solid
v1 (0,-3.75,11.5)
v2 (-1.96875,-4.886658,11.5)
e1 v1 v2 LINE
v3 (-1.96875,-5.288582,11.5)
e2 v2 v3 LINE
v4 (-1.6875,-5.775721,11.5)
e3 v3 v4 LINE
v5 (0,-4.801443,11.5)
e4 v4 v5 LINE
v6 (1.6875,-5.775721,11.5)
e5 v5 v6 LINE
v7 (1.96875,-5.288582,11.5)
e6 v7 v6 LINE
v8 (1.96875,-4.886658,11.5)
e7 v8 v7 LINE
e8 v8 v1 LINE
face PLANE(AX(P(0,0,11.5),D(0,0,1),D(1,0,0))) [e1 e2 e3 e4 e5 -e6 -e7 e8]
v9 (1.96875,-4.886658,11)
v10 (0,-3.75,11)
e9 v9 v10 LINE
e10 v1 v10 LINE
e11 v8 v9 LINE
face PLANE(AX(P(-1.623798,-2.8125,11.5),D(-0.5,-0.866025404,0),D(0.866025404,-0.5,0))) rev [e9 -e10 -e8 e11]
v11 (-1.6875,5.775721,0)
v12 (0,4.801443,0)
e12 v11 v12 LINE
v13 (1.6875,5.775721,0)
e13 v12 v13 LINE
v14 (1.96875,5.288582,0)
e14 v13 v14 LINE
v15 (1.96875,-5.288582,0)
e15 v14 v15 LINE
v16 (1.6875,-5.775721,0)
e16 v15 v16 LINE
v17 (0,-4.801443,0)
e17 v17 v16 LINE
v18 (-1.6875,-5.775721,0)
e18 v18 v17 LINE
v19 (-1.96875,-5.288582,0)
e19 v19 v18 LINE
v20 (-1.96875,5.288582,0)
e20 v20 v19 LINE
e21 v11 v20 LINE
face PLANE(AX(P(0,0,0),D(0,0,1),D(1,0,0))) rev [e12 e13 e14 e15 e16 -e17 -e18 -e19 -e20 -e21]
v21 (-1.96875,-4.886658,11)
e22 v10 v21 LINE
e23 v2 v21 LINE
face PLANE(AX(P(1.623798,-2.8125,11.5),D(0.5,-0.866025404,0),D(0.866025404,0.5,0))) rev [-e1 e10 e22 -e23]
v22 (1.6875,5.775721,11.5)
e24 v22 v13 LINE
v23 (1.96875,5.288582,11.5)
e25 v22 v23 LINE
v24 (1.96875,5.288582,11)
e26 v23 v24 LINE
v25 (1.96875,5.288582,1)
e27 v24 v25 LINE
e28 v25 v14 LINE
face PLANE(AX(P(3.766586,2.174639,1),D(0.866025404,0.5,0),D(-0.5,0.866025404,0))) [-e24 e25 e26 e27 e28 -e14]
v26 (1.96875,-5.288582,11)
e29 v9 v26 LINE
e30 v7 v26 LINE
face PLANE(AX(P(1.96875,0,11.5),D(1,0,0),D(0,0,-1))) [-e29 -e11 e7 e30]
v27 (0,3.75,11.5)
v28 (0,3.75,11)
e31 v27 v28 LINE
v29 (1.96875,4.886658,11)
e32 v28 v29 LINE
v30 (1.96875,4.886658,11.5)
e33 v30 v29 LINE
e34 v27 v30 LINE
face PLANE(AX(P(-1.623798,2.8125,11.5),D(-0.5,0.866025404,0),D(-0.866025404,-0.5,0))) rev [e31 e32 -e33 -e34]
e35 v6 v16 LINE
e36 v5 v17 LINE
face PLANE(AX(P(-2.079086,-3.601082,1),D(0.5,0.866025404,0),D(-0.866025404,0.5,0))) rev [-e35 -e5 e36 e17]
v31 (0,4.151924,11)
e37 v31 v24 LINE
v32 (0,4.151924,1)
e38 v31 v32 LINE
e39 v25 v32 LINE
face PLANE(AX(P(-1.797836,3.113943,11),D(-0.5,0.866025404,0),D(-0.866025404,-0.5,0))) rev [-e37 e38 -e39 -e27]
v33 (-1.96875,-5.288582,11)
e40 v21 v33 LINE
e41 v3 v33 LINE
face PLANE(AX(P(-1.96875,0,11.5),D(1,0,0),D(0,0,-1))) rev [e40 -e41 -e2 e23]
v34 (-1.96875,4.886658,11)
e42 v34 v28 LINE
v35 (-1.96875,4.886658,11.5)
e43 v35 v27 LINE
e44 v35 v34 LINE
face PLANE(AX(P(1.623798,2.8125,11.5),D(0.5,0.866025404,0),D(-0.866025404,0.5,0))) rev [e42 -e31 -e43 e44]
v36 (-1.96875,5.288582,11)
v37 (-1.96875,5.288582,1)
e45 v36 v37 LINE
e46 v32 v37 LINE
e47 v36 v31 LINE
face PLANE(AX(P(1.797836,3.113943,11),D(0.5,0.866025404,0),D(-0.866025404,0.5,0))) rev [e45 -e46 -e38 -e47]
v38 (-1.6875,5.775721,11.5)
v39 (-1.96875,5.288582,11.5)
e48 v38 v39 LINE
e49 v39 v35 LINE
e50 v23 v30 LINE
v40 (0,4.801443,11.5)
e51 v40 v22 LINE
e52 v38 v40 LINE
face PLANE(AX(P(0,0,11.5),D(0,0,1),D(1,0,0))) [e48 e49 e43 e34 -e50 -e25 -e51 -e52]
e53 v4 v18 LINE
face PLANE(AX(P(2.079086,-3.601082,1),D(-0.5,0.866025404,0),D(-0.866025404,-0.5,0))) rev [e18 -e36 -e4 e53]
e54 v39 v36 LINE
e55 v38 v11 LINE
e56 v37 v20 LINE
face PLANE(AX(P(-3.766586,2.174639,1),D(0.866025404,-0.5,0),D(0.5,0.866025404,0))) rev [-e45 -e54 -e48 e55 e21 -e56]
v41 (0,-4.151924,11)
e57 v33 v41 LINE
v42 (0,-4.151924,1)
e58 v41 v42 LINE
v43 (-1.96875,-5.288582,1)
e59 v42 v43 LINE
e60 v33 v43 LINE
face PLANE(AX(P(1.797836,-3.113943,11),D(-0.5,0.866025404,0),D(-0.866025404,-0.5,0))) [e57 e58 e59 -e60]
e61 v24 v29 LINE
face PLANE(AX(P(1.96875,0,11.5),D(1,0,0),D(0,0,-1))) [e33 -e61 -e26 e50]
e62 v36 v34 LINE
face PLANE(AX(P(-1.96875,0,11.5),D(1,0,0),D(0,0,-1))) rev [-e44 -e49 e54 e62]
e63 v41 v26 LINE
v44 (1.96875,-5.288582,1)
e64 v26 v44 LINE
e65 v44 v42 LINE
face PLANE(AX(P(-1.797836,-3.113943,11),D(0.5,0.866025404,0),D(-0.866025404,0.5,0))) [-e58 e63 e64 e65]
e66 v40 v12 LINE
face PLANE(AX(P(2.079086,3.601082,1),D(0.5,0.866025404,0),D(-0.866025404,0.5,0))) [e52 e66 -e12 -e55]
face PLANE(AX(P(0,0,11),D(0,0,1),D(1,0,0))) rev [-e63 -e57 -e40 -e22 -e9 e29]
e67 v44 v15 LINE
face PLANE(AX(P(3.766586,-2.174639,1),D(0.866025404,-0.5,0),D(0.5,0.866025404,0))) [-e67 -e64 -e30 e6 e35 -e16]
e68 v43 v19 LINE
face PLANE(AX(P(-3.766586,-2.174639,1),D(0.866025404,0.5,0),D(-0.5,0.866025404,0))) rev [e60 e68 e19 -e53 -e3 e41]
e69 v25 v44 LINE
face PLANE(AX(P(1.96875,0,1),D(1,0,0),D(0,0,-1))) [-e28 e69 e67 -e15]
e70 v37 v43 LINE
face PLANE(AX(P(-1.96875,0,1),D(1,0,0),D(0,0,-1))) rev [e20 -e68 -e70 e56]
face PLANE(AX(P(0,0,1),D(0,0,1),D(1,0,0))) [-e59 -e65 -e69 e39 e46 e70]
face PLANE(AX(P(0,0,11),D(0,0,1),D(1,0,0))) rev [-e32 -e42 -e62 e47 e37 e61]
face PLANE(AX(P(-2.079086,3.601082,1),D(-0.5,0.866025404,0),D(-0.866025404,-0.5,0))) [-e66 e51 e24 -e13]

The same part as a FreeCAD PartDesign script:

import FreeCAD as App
import Part
import Sketcher
from FreeCAD import Vector
Q = App.Units.Quantity


def add_polygon(sketch, points):
    """Adds a closed chain of lines whose ends are joined by coincident constraints."""
    first, n = sketch.GeometryCount, len(points)
    for a, b in zip(points, points[1:] + points[:1]):
        sketch.addGeometry(Part.LineSegment(App.Vector(*a, 0), App.Vector(*b, 0)), False)
    for i in range(n):
        sketch.addConstraint(Sketcher.Constraint("Coincident", first + i, 2, first + (i + 1) % n, 1))

doc = App.newDocument("Part")
body = doc.addObject("PartDesign::Body", "Body")

# Sketch on XY plane
sketch1 = doc.addObject("Sketcher::SketchObject", "Sketch")
body.addObject(sketch1)
sketch1.AttachmentSupport = (doc.XY_Plane, [""])
sketch1.MapMode = "FlatFace"
add_polygon(sketch1, [(1.6875, 5.775721), (0, 4.801443), (-1.6875, 5.775721), (-1.96875, 5.288582), (-1.96875, -5.288582), (-1.6875, -5.775721), (0, -4.801443), (1.6875, -5.775721), (1.96875, -5.288582), (1.96875, 5.288582)])  # lines 0-9
sketch1.addConstraint([
    Sketcher.Constraint("Vertical", 3),
    Sketcher.Constraint("Vertical", 8),
    Sketcher.Constraint("Symmetric", 0, 2, 5, 2, -1, 1),
    Sketcher.Constraint("Symmetric", 1, 2, 6, 2, -1, 1),
    Sketcher.Constraint("Symmetric", 2, 2, 7, 2, -1, 1),
    Sketcher.Constraint("Symmetric", 4, 2, 9, 2, -1, 1),
    Sketcher.Constraint("Symmetric", 4, 2, 6, 2, -2),
    Sketcher.Constraint("PointOnObject", 0, 2, -2),
    Sketcher.Constraint("Perpendicular", 1, 2),
    Sketcher.Constraint("Perpendicular", 0, 4),
    Sketcher.Constraint("Perpendicular", 5, 9),
    Sketcher.Constraint("Angle", 0, Q("-150 deg")),
    Sketcher.Constraint("DistanceX", 4, 2, 6, 2, 3.375),
    Sketcher.Constraint("Distance", 2, 0.5625),
    Sketcher.Constraint("DistanceY", 3, 2, 3, 1, 10.577164),
])
pad1 = doc.addObject("PartDesign::Pad", "Pad")
body.addObject(pad1)
pad1.Profile = sketch1
pad1.Length = 1

# Sketch on XY plane
sketch2 = doc.addObject("Sketcher::SketchObject", "Sketch001")
body.addObject(sketch2)
sketch2.AttachmentSupport = (doc.XY_Plane, [""])
sketch2.MapMode = "FlatFace"
add_polygon(sketch2, [(0, -4.151924), (-1.96875, -5.288582), (-1.6875, -5.775721), (0, -4.801443), (1.6875, -5.775721), (1.96875, -5.288582)])  # lines 0-5
add_polygon(sketch2, [(-1.96875, 5.288582), (0, 4.151924), (1.96875, 5.288582), (1.6875, 5.775721), (0, 4.801443), (-1.6875, 5.775721)])  # lines 6-11
sketch2.addConstraint([
    Sketcher.Constraint("Symmetric", 5, 2, 6, 2, -1, 1),
    Sketcher.Constraint("Symmetric", 0, 2, 7, 2, -1, 1),
    Sketcher.Constraint("Symmetric", 1, 2, 8, 2, -1, 1),
    Sketcher.Constraint("Symmetric", 2, 2, 9, 2, -1, 1),
    Sketcher.Constraint("Symmetric", 3, 2, 10, 2, -1, 1),
    Sketcher.Constraint("Symmetric", 4, 2, 11, 2, -1, 1),
    Sketcher.Constraint("Symmetric", 1, 2, 3, 2, -2),
    Sketcher.Constraint("Symmetric", 0, 2, 4, 2, -2),
    Sketcher.Constraint("PointOnObject", 2, 2, -2),
    Sketcher.Constraint("PointOnObject", 5, 2, -2),
    Sketcher.Constraint("Perpendicular", 0, 1),
    Sketcher.Constraint("Perpendicular", 1, 2),
    Sketcher.Constraint("Angle", 0, Q("-150 deg")),
    Sketcher.Constraint("DistanceX", 1, 2, 3, 2, 3.375),
    Sketcher.Constraint("Distance", 1, 0.5625),
    Sketcher.Constraint("DistanceY", 1, 2, -1, 1, 5.775721),
])
pad2 = doc.addObject("PartDesign::Pad", "Pad001")
body.addObject(pad2)
pad2.Profile = sketch2
pad2.Length = 11

# Sketch on XY plane
sketch3 = doc.addObject("Sketcher::SketchObject", "Sketch002")
body.addObject(sketch3)
sketch3.AttachmentSupport = (doc.XY_Plane, [""])
sketch3.MapMode = "FlatFace"
sketch3.AttachmentOffset = App.Placement(Vector(0, 0, 11), App.Rotation())
add_polygon(sketch3, [(1.96875, -4.886658), (0, -3.75), (-1.96875, -4.886658), (-1.96875, -5.288582), (-1.6875, -5.775721), (0, -4.801443), (1.6875, -5.775721), (1.96875, -5.288582)])  # lines 0-7
add_polygon(sketch3, [(0, 3.75), (1.96875, 4.886658), (1.96875, 5.288582), (1.6875, 5.775721), (0, 4.801443), (-1.6875, 5.775721), (-1.96875, 5.288582), (-1.96875, 4.886658)])  # lines 8-15
sketch3.addConstraint([
    Sketcher.Constraint("Vertical", 2),
    Sketcher.Constraint("Vertical", 7),
    Sketcher.Constraint("Vertical", 9),
    Sketcher.Constraint("Vertical", 14),
    Sketcher.Constraint("Symmetric", 1, 2, 8, 2, -1, 1),
    Sketcher.Constraint("Symmetric", 3, 2, 10, 2, -1, 1),
    Sketcher.Constraint("Symmetric", 4, 2, 11, 2, -1, 1),
    Sketcher.Constraint("Symmetric", 5, 2, 12, 2, -1, 1),
    Sketcher.Constraint("Symmetric", 6, 2, 13, 2, -1, 1),
    Sketcher.Constraint("Symmetric", 0, 2, 15, 2, -1, 1),
    Sketcher.Constraint("Symmetric", 3, 2, 5, 2, -2),
    Sketcher.Constraint("Symmetric", 2, 2, 6, 2, -2),
    Sketcher.Constraint("PointOnObject", 0, 2, -2),
    Sketcher.Constraint("PointOnObject", 4, 2, -2),
    Sketcher.Constraint("Perpendicular", 1, 3),
    Sketcher.Constraint("Perpendicular", 3, 4),
    Sketcher.Constraint("Parallel", 0, 5),
    Sketcher.Constraint("Perpendicular", 8, 10),
    Sketcher.Constraint("Perpendicular", 13, 15),
    Sketcher.Constraint("Angle", 0, Q("150 deg")),
    Sketcher.Constraint("DistanceY", 0, 2, -1, 1, 3.75),
    Sketcher.Constraint("DistanceX", 3, 2, 5, 2, 3.375),
    Sketcher.Constraint("Distance", 3, 0.5625),
    Sketcher.Constraint("DistanceY", 4, 2, 8, 2, 9.688101),
])
pad3 = doc.addObject("PartDesign::Pad", "Pad002")
body.addObject(pad3)
pad3.Profile = sketch3
pad3.Length = 0.5

doc.recompute()
